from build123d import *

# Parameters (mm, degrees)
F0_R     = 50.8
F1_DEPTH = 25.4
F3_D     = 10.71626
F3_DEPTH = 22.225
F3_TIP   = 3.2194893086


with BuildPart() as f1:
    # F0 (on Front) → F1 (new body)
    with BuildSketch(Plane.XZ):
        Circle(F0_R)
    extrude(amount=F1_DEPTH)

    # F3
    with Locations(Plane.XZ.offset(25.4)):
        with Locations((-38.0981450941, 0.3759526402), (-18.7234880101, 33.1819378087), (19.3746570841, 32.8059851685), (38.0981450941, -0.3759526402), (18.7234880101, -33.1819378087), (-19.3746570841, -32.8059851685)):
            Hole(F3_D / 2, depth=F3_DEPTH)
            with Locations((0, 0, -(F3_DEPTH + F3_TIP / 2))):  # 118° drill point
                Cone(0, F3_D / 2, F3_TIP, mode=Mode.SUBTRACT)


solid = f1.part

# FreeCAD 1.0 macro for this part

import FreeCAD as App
import Part
import Sketcher
Q = App.Units.Quantity

doc = App.newDocument("Part")
params = doc.addObject("Spreadsheet::Sheet", "Params")
for row, (alias, value) in enumerate([
    ("sketch1_diameter", "4 in"),
    ("pad1_length", "1 in"),
    ("hole_diameter", "0.4219 in"),
    ("hole_depth", "0.875 in"),
], start=1):
    params.set(f"A{row}", alias)
    params.set(f"B{row}", "=" + value)
    params.setAlias(f"B{row}", alias)

body = doc.addObject("PartDesign::Body", "Body")

# Sketch on XZ plane
sketch1 = body.newObject("Sketcher::SketchObject", "Sketch")
sketch1.AttachmentSupport = (doc.getObject("XZ_Plane"), [""])
sketch1.MapMode = "FlatFace"
sketch1.addGeometry(Part.Circle(App.Vector(0, 0, 0), App.Vector(0, 0, 1), 51), False)
sketch1.addConstraint([
    Sketcher.Constraint("Coincident", 0, 3, -1, 1),
    Sketcher.Constraint("Diameter", 0, Q("4 in")),
])
sketch1.setExpression("Constraints[1]", "Params.sketch1_diameter")
pad1 = body.newObject("PartDesign::Pad", "Pad")
pad1.Profile = sketch1
pad1.setExpression("Length", "Params.pad1_length")

# Sketch on XZ plane
sketch2 = body.newObject("Sketcher::SketchObject", "Sketch001")
sketch2.AttachmentSupport = (doc.getObject("XZ_Plane"), [""])
sketch2.MapMode = "FlatFace"
sketch2.AttachmentOffset = App.Placement(App.Vector(0, 0, 1 * 25.4), App.Rotation())
sketch2.addGeometry([
    Part.Circle(App.Vector(-38, 0, 0), App.Vector(0, 0, 1), 5),  # 0
    Part.Circle(App.Vector(-19, 33, 0), App.Vector(0, 0, 1), 5),  # 1
    Part.Circle(App.Vector(19, 33, 0), App.Vector(0, 0, 1), 5),  # 2
    Part.Circle(App.Vector(38, 0, 0), App.Vector(0, 0, 1), 5),  # 3
    Part.Circle(App.Vector(19, -33, 0), App.Vector(0, 0, 1), 5),  # 4
    Part.Circle(App.Vector(-19, -33, 0), App.Vector(0, 0, 1), 5),  # 5
], False)
sketch2.addConstraint([
    Sketcher.Constraint("Equal", 0, 1),
    Sketcher.Constraint("Equal", 1, 2),
    Sketcher.Constraint("Equal", 2, 3),
    Sketcher.Constraint("Equal", 3, 4),
    Sketcher.Constraint("Equal", 4, 5),
    Sketcher.Constraint("Symmetric", 0, 3, 3, 3, -1, 1),
    Sketcher.Constraint("Symmetric", 1, 3, 4, 3, -1, 1),
    Sketcher.Constraint("Symmetric", 2, 3, 5, 3, -1, 1),
    Sketcher.Constraint("Diameter", 0, Q("0.4219 in")),
    Sketcher.Constraint("DistanceX", 1, 3, -1, 1, 18.723488),
    Sketcher.Constraint("DistanceX", 2, 3, 3, 3, 18.723488),
    Sketcher.Constraint("DistanceY", 3, 3, 1, 3, 33.55789),
    Sketcher.Constraint("DistanceX", 0, 3, 3, 3, 76.19629),
    Sketcher.Constraint("DistanceY", 5, 3, 2, 3, 65.61197),
    Sketcher.Constraint("DistanceY", -1, 1, 0, 3, 0.375953),
])
doc.recompute()
hole = body.newObject("PartDesign::Hole", "Hole")
hole.Profile = sketch2
hole.ThreadType = "None"
hole.setExpression("Diameter", "Params.hole_diameter")
hole.DepthType = "Dimension"
hole.setExpression("Depth", "Params.hole_depth")
hole.DrillPoint = "Angled"
hole.DrillPointAngle = 118

doc.recompute()
